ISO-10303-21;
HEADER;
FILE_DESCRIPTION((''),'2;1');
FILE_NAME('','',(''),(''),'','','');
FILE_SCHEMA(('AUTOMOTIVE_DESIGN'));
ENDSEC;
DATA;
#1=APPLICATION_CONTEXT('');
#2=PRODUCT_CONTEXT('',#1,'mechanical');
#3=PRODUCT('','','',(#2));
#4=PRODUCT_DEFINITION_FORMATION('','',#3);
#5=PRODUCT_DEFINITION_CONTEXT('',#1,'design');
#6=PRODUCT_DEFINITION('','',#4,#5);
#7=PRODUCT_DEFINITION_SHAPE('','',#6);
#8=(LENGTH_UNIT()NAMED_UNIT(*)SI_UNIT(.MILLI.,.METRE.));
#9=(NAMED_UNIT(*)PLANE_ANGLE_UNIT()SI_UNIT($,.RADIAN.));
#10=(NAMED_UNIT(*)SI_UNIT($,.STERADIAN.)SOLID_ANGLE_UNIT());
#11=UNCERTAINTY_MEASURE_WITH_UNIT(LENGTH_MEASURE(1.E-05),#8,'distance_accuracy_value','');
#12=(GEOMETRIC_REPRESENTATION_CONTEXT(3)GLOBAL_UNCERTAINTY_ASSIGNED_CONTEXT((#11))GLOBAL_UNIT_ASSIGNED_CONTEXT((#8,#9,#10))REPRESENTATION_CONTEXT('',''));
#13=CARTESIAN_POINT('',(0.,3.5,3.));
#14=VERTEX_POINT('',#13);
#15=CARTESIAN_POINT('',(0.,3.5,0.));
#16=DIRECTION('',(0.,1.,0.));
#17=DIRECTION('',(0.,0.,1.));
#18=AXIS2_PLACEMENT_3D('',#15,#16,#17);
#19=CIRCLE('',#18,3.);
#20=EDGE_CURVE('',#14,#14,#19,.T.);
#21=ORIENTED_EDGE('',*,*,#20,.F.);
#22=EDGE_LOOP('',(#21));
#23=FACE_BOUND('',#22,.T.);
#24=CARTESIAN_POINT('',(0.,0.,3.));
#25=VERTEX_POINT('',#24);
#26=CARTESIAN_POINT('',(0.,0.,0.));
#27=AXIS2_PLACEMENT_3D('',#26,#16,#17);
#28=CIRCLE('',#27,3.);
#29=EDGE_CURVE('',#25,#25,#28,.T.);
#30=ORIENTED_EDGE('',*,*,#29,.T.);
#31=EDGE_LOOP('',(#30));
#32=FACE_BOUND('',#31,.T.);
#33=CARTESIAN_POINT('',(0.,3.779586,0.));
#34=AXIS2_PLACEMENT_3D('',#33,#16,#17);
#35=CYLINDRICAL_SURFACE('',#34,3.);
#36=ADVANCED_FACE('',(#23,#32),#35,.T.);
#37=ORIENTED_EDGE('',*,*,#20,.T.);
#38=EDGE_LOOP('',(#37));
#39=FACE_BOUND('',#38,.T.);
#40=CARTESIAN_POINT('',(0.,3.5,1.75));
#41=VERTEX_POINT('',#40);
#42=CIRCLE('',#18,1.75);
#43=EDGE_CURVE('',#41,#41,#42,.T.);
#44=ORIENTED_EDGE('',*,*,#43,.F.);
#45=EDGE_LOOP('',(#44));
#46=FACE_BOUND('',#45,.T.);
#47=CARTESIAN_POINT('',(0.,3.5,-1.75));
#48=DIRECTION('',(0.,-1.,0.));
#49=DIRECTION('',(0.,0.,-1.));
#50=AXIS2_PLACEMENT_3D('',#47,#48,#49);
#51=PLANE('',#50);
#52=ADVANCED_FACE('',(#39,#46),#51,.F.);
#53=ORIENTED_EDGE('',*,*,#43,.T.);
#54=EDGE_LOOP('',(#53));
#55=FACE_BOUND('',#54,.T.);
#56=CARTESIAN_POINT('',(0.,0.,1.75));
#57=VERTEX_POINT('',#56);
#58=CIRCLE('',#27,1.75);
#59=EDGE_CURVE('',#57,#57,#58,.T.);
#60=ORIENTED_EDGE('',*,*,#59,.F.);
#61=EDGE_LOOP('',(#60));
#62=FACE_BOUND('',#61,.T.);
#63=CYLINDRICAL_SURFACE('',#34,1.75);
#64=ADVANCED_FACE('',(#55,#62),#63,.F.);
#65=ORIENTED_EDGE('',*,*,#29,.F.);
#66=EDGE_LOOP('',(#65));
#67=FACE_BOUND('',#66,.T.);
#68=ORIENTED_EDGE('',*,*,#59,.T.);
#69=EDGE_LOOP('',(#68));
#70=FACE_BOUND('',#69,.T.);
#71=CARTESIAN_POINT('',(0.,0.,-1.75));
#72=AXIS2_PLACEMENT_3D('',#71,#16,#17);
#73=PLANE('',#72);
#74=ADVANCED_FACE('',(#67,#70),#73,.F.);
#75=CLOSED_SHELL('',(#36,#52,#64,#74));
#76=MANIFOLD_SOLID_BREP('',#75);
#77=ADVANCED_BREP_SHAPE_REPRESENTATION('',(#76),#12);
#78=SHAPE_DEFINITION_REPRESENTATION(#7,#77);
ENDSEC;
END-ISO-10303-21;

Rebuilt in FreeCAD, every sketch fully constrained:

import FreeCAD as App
import Part
import Sketcher


def add_polygon(sketch, points):
    """Adds a closed chain of lines whose ends are joined by coincident constraints."""
    first, n = sketch.GeometryCount, len(points)
    for a, b in zip(points, points[1:] + points[:1]):
        sketch.addGeometry(Part.LineSegment(App.Vector(*a, 0), App.Vector(*b, 0)), False)
    for i in range(n):
        sketch.addConstraint(Sketcher.Constraint("Coincident", first + i, 2, first + (i + 1) % n, 1))

doc = App.newDocument("Part")
body = doc.addObject("PartDesign::Body", "Body")

# Sketch on YZ plane
sketch1 = doc.addObject("Sketcher::SketchObject", "Sketch")
body.addObject(sketch1)
sketch1.AttachmentSupport = (doc.YZ_Plane, [""])
sketch1.MapMode = "FlatFace"
add_polygon(sketch1, [(3.5, -1.75), (0, -1.75), (0, -3), (3.5, -3)])  # lines 0-3
sketch1.addConstraint([
    Sketcher.Constraint("Horizontal", 0),
    Sketcher.Constraint("Vertical", 1),
    Sketcher.Constraint("Horizontal", 2),
    Sketcher.Constraint("Vertical", 3),
    Sketcher.Constraint("PointOnObject", 0, 2, -2),
    Sketcher.Constraint("DistanceX", 0, 2, 0, 1, 3.5),
    Sketcher.Constraint("DistanceY", 1, 2, -1, 1, 3.0),
    Sketcher.Constraint("DistanceY", 1, 2, 1, 1, 1.25),
])
revolution = doc.addObject("PartDesign::Revolution", "Revolution")
body.addObject(revolution)
revolution.Profile = sketch1
revolution.ReferenceAxis = (sketch1, ["H_Axis"])
revolution.Angle = 360

doc.recompute()
